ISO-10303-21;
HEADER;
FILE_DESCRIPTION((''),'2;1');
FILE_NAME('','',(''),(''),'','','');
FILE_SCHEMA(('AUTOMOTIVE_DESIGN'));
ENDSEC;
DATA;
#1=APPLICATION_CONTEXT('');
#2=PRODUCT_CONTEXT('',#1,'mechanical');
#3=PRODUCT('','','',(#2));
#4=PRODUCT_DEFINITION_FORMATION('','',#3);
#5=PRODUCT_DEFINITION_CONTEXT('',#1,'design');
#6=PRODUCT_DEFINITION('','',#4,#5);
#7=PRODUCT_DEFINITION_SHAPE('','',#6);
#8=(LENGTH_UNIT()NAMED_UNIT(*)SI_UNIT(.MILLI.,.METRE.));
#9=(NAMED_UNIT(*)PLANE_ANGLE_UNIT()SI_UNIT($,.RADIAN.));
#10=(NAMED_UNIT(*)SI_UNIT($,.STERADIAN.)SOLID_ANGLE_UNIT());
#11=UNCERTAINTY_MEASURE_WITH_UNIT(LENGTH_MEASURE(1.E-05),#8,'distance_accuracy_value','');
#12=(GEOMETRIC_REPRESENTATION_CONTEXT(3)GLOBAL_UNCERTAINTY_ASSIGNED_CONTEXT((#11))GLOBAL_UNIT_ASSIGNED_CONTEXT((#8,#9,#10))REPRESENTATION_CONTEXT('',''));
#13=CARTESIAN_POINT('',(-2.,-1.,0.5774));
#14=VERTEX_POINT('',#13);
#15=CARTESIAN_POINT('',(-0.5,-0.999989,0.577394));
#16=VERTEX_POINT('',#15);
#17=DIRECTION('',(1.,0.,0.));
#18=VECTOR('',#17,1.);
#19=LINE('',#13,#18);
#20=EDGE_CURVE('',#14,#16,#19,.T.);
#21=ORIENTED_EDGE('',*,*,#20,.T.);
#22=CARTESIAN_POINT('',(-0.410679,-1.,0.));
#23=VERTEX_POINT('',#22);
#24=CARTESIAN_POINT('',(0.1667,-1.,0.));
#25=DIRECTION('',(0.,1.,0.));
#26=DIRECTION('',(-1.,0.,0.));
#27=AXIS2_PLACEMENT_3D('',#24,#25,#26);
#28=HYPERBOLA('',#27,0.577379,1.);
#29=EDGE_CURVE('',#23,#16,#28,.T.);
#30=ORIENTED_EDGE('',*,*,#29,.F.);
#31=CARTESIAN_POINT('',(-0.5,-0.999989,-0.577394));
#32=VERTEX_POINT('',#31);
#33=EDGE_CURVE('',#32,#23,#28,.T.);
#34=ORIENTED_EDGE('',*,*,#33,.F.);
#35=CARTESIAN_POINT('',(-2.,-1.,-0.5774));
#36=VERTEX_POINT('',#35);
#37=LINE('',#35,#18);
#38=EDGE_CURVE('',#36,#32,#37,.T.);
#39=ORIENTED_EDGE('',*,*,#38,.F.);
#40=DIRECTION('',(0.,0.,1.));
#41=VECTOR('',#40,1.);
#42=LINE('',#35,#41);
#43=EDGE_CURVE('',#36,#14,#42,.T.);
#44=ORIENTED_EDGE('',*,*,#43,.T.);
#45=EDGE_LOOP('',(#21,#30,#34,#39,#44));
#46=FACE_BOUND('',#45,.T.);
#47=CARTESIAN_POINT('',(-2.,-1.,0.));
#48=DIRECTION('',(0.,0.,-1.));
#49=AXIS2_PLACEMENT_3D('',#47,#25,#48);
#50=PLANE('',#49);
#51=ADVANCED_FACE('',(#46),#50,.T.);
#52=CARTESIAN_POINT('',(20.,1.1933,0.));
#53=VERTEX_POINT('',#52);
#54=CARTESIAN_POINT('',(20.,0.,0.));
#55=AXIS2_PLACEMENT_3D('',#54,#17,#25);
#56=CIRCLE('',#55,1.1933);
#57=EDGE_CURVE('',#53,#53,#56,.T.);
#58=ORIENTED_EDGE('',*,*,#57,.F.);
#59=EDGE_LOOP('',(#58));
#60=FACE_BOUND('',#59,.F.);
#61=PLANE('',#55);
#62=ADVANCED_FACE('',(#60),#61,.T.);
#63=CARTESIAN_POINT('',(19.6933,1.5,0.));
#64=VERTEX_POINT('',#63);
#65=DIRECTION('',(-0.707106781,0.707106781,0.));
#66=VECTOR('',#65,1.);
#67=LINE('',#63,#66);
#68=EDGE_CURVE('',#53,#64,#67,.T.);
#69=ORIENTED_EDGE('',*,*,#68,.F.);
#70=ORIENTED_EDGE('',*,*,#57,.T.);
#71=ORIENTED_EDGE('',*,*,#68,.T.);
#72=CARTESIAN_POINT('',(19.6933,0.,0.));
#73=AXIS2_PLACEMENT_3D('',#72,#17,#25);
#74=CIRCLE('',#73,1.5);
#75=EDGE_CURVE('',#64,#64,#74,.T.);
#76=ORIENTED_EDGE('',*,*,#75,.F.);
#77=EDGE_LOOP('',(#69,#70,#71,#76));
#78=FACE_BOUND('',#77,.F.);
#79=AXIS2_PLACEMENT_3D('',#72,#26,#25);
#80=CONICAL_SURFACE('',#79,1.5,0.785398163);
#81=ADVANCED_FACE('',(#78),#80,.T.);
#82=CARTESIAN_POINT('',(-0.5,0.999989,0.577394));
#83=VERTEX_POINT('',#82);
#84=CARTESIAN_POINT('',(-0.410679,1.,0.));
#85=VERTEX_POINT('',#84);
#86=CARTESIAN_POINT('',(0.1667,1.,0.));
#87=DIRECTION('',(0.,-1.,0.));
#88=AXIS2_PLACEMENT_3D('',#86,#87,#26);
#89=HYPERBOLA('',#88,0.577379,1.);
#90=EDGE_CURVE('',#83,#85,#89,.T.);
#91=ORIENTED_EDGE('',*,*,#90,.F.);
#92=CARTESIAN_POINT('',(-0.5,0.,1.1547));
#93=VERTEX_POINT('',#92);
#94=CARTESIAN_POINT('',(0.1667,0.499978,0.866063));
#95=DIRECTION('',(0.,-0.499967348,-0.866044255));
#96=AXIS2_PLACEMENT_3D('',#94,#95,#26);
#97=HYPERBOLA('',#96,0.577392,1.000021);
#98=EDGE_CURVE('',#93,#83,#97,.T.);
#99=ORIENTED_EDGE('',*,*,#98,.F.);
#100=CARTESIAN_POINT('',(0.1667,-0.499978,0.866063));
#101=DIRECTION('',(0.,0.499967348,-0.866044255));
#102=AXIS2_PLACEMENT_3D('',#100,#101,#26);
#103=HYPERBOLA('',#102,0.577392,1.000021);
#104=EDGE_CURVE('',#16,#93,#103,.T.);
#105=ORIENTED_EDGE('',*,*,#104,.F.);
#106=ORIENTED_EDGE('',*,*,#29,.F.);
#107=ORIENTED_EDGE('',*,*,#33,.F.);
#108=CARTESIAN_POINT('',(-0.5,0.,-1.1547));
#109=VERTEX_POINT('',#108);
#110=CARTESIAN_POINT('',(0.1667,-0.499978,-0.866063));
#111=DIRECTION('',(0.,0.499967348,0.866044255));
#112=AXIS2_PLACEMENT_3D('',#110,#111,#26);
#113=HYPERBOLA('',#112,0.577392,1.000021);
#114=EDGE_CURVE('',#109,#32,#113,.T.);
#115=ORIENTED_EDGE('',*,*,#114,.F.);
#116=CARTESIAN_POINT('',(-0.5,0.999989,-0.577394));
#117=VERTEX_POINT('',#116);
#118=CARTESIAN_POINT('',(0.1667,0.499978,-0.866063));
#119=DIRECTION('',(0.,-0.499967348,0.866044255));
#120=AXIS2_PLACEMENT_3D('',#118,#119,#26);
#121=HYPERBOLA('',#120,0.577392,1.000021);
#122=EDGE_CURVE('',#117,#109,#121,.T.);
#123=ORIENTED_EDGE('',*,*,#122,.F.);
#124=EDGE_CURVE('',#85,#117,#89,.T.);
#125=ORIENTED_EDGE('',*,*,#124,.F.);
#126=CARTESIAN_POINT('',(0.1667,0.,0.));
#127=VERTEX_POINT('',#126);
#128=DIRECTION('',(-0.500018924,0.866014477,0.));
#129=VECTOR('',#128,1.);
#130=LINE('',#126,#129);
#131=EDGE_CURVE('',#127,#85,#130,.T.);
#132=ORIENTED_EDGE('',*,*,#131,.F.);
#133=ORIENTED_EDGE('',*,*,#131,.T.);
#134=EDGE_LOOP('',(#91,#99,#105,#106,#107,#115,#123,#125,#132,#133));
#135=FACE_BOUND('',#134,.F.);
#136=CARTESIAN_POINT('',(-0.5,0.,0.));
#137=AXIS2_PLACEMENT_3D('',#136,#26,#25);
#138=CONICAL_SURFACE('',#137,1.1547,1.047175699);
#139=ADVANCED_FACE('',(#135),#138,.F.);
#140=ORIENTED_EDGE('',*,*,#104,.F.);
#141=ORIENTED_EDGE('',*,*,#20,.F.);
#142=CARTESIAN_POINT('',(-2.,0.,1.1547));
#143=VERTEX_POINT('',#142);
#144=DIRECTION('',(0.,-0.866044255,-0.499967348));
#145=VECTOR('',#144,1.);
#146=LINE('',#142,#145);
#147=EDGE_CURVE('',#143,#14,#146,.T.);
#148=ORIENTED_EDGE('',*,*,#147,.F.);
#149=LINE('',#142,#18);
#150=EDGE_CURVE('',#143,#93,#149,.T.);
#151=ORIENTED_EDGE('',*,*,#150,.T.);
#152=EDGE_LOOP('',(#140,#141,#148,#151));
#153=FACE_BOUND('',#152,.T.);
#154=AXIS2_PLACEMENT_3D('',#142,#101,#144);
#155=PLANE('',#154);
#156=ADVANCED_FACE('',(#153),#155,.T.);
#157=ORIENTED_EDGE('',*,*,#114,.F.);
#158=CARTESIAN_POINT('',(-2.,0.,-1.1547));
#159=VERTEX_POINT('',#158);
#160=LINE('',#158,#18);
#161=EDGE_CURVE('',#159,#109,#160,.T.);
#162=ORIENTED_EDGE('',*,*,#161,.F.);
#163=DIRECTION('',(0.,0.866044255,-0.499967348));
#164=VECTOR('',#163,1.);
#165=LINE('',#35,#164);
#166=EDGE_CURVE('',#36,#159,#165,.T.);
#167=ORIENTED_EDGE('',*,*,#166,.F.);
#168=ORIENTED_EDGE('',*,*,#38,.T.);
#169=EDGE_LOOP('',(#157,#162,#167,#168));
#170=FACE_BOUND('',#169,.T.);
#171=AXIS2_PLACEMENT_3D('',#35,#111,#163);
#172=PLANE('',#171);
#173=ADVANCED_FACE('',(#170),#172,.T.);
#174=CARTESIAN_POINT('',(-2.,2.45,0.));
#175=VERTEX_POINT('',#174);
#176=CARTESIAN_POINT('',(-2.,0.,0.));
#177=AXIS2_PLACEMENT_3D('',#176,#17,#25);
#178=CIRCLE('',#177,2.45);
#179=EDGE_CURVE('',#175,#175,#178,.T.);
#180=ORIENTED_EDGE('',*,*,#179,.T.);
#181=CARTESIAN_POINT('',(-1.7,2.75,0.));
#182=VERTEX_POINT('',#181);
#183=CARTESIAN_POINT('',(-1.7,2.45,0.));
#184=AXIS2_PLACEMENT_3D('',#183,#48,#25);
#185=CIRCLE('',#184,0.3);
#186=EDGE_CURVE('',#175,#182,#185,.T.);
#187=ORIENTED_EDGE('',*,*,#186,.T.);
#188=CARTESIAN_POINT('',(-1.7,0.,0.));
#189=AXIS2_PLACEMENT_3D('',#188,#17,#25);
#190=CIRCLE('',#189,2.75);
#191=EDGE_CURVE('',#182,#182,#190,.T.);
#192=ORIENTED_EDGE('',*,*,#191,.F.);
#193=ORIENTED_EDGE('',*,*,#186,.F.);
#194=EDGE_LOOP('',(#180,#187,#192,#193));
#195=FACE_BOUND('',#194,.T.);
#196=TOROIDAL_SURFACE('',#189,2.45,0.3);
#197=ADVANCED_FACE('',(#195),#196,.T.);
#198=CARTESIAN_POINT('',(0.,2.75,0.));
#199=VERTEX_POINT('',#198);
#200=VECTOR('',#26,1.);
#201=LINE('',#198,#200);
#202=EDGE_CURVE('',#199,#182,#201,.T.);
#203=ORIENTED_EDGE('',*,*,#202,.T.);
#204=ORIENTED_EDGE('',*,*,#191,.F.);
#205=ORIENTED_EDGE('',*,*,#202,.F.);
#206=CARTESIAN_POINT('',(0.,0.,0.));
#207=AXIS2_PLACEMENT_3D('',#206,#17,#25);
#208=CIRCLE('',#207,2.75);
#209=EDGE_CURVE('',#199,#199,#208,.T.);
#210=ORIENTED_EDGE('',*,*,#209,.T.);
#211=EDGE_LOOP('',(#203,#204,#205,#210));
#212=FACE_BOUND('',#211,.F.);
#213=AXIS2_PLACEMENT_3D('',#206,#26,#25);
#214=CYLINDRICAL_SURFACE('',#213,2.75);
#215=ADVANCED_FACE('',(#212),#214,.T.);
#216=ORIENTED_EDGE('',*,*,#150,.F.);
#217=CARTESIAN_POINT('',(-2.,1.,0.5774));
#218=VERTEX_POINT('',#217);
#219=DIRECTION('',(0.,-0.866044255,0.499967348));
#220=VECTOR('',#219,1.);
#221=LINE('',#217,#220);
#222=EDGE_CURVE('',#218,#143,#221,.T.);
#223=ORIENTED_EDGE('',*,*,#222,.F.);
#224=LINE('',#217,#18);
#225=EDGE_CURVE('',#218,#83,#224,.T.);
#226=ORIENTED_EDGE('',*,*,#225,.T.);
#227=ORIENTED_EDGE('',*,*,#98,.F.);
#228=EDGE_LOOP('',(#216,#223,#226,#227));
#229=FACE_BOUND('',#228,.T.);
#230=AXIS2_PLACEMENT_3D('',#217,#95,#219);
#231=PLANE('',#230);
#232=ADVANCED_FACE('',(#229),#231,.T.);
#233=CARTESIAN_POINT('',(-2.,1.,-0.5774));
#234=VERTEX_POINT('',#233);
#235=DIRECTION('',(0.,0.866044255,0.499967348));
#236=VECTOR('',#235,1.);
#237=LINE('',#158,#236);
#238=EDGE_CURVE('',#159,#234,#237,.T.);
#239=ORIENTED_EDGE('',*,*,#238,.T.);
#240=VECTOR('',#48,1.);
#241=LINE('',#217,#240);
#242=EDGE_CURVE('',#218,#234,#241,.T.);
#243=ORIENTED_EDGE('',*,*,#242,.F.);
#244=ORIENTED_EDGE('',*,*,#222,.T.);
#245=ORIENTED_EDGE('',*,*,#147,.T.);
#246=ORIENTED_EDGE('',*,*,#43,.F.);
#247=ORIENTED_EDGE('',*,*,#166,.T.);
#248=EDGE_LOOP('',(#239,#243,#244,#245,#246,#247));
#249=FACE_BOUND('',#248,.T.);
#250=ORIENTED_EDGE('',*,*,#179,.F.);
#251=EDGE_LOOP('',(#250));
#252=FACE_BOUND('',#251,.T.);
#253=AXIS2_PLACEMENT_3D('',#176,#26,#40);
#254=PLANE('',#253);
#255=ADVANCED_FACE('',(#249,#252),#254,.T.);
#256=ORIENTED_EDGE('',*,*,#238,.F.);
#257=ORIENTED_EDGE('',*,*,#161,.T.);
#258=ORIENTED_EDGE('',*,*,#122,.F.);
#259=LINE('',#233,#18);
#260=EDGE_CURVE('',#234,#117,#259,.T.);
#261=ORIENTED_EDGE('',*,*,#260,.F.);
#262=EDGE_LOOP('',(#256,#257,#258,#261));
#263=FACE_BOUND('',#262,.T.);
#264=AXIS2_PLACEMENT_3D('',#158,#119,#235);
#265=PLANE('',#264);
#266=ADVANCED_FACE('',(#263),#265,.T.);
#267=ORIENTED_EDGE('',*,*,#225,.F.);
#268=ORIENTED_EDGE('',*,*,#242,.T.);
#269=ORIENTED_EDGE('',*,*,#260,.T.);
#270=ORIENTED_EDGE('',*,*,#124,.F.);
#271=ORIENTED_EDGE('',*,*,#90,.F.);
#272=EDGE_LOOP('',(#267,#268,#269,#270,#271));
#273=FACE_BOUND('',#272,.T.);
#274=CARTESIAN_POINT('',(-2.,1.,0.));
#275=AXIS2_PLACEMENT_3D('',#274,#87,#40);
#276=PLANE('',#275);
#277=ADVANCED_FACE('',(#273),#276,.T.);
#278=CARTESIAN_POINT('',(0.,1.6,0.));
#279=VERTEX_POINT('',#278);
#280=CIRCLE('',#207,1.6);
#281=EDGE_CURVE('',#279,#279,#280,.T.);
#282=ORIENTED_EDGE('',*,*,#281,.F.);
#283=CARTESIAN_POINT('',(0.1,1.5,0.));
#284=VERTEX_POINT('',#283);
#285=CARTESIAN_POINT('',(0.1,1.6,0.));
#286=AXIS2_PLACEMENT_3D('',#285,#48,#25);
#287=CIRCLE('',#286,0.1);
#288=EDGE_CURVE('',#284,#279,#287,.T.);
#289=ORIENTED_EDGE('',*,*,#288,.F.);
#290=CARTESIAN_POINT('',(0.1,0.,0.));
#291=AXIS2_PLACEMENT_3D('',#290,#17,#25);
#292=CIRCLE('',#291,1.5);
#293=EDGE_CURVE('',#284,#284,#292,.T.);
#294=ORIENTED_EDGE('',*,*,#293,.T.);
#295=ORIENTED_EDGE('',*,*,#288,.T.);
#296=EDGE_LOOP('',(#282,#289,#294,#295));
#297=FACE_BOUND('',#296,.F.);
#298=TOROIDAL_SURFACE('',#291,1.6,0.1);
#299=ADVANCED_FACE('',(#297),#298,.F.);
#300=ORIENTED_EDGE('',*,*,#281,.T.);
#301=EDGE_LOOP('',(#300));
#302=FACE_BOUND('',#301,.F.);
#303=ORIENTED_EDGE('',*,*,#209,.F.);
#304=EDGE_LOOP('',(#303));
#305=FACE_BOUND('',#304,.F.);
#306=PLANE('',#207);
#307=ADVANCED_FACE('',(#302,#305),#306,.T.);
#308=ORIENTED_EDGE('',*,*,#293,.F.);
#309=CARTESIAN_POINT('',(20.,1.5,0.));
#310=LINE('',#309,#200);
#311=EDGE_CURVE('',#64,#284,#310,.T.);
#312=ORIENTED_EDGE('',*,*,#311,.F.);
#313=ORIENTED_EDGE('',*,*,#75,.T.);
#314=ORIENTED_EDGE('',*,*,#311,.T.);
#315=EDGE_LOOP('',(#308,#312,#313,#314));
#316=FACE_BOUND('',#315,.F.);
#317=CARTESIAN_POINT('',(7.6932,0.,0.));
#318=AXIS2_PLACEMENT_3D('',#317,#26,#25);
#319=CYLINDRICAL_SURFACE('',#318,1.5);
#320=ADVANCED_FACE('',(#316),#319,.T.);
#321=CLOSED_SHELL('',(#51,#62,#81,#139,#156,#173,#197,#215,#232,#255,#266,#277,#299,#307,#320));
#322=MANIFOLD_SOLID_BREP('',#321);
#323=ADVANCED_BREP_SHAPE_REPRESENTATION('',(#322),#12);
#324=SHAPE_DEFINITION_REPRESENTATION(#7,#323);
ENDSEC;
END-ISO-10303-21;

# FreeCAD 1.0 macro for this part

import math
import FreeCAD as App
import Part
import Sketcher
Q = App.Units.Quantity


def edges_at(feature, points):
    """Names of the edges that pass closest to the given points."""
    edges = feature.Shape.Edges
    near = lambda p: min(range(len(edges)), key=lambda i: edges[i].distToShape(Part.Vertex(*p))[0])
    return sorted({f"Edge{near(p) + 1}" for p in points})

doc = App.newDocument("Part")
body = doc.addObject("PartDesign::Body", "Body")

sketch1 = doc.addObject("Sketcher::SketchObject", "Sketch")
body.addObject(sketch1)
sketch1.AttachmentSupport = (doc.XY_Plane, [""])
sketch1.MapMode = "FlatFace"
sketch1.addGeometry(Part.LineSegment(App.Vector(0.2, 0, 0), App.Vector(20, 0, 0)), False)
sketch1.addGeometry(Part.LineSegment(App.Vector(20, 0, 0), App.Vector(20, 1.5, 0)), False)
sketch1.addGeometry(Part.LineSegment(App.Vector(20, 1.5, 0), App.Vector(0, 1.5, 0)), False)
sketch1.addGeometry(Part.LineSegment(App.Vector(0, 1.5, 0), App.Vector(0, 2.8, 0)), False)
sketch1.addGeometry(Part.LineSegment(App.Vector(0, 2.8, 0), App.Vector(-2, 2.8, 0)), False)
sketch1.addGeometry(Part.LineSegment(App.Vector(-2, 2.8, 0), App.Vector(-2, 1.2, 0)), False)
sketch1.addGeometry(Part.LineSegment(App.Vector(-2, 1.2, 0), App.Vector(-0.5, 1.2, 0)), False)
sketch1.addGeometry(Part.LineSegment(App.Vector(-0.5, 1.2, 0), App.Vector(0.2, 0, 0)), False)
sketch1.addConstraint(Sketcher.Constraint("Coincident", 0, 2, 1, 1))
sketch1.addConstraint(Sketcher.Constraint("Coincident", 1, 2, 2, 1))
sketch1.addConstraint(Sketcher.Constraint("Coincident", 2, 2, 3, 1))
sketch1.addConstraint(Sketcher.Constraint("Coincident", 3, 2, 4, 1))
sketch1.addConstraint(Sketcher.Constraint("Coincident", 4, 2, 5, 1))
sketch1.addConstraint(Sketcher.Constraint("Coincident", 5, 2, 6, 1))
sketch1.addConstraint(Sketcher.Constraint("Coincident", 6, 2, 7, 1))
sketch1.addConstraint(Sketcher.Constraint("Coincident", 7, 2, 0, 1))
sketch1.addConstraint(Sketcher.Constraint("Horizontal", 0))
sketch1.addConstraint(Sketcher.Constraint("Vertical", 1))
sketch1.addConstraint(Sketcher.Constraint("Horizontal", 2))
sketch1.addConstraint(Sketcher.Constraint("Vertical", 3))
sketch1.addConstraint(Sketcher.Constraint("Horizontal", 4))
sketch1.addConstraint(Sketcher.Constraint("Vertical", 5))
sketch1.addConstraint(Sketcher.Constraint("Horizontal", 6))
sketch1.addConstraint(Sketcher.Constraint("PointOnObject", 0, 2, -1))
sketch1.addConstraint(Sketcher.Constraint("PointOnObject", 2, 2, -2))
sketch1.addConstraint(Sketcher.Constraint("Equal", 6, 1))
sketch1.addConstraint(Sketcher.Constraint("DistanceX", 2, 2, 2, 1, Q("20 mm")))
sketch1.addConstraint(Sketcher.Constraint("DistanceX", 4, 2, 4, 1, Q("2 mm")))
sketch1.addConstraint(Sketcher.Constraint("DistanceX", 6, 1, 6, 2, Q("1.5 mm")))
sketch1.addConstraint(Sketcher.Constraint("DistanceY", 3, 1, 3, 2, Q("1.25 mm")))
sketch1.addConstraint(Sketcher.Constraint("DistanceX", 0, 1, 0, 2, Q("19.8333 mm")))
sketch1.addConstraint(Sketcher.Constraint("DistanceY", 5, 2, 5, 1, Q("1.5953 mm")))
revolution = doc.addObject("PartDesign::Revolution", "Revolution")
body.addObject(revolution)
revolution.Profile = sketch1
revolution.ReferenceAxis = (sketch1, ["H_Axis"])
revolution.Angle = 360

sketch2 = doc.addObject("Sketcher::SketchObject", "Sketch001")
body.addObject(sketch2)
sketch2.AttachmentSupport = (doc.YZ_Plane, [""])
sketch2.MapMode = "FlatFace"
sketch2.AttachmentOffset = App.Placement(App.Vector(0, 0, -2), App.Rotation())
sketch2.addGeometry(Part.LineSegment(App.Vector(1, 0.6, 0), App.Vector(0, 1.2, 0)), False)
sketch2.addGeometry(Part.ArcOfCircle(Part.Circle(App.Vector(0, 0, 0), App.Vector(0, 0, 1), 1.2), math.radians(30), math.radians(90)), False)
sketch2.addGeometry(Part.ArcOfCircle(Part.Circle(App.Vector(0, 0, 0), App.Vector(0, 0, 1), 1.2), math.radians(90), math.radians(150)), False)
sketch2.addGeometry(Part.LineSegment(App.Vector(0, 1.2, 0), App.Vector(-1, 0.6, 0)), False)
sketch2.addGeometry(Part.ArcOfCircle(Part.Circle(App.Vector(0, 0, 0), App.Vector(0, 0, 1), 1.2), math.radians(-30), math.radians(30)), False)
sketch2.addGeometry(Part.LineSegment(App.Vector(1, 0.6, 0), App.Vector(1, -0.6, 0)), False)
sketch2.addGeometry(Part.LineSegment(App.Vector(-1, 0.6, 0), App.Vector(-1, -0.6, 0)), False)
sketch2.addGeometry(Part.ArcOfCircle(Part.Circle(App.Vector(0, 0, 0), App.Vector(0, 0, 1), 1.2), math.radians(150), math.radians(210)), False)
sketch2.addGeometry(Part.LineSegment(App.Vector(-1, -0.6, 0), App.Vector(0, -1.2, 0)), False)
sketch2.addGeometry(Part.ArcOfCircle(Part.Circle(App.Vector(0, 0, 0), App.Vector(0, 0, 1), 1.2), math.radians(-150), math.radians(-90)), False)
sketch2.addGeometry(Part.ArcOfCircle(Part.Circle(App.Vector(0, 0, 0), App.Vector(0, 0, 1), 1.2), math.radians(-90), math.radians(-30)), False)
sketch2.addGeometry(Part.LineSegment(App.Vector(0, -1.2, 0), App.Vector(1, -0.6, 0)), False)
sketch2.addConstraint(Sketcher.Constraint("Coincident", 0, 1, 1, 1))
sketch2.addConstraint(Sketcher.Constraint("Coincident", 1, 2, 0, 2))
sketch2.addConstraint(Sketcher.Constraint("Coincident", 2, 1, 3, 1))
sketch2.addConstraint(Sketcher.Constraint("Coincident", 3, 2, 2, 2))
sketch2.addConstraint(Sketcher.Constraint("Coincident", 4, 1, 5, 2))
sketch2.addConstraint(Sketcher.Constraint("Coincident", 5, 1, 4, 2))
sketch2.addConstraint(Sketcher.Constraint("Coincident", 6, 1, 7, 1))
sketch2.addConstraint(Sketcher.Constraint("Coincident", 7, 2, 6, 2))
sketch2.addConstraint(Sketcher.Constraint("Coincident", 8, 1, 9, 1))
sketch2.addConstraint(Sketcher.Constraint("Coincident", 9, 2, 8, 2))
sketch2.addConstraint(Sketcher.Constraint("Coincident", 10, 1, 11, 1))
sketch2.addConstraint(Sketcher.Constraint("Coincident", 11, 2, 10, 2))
sketch2.addConstraint(Sketcher.Constraint("Vertical", 5))
sketch2.addConstraint(Sketcher.Constraint("Vertical", 6))
sketch2.addConstraint(Sketcher.Constraint("Coincident", 1, 3, -1, 1))
sketch2.addConstraint(Sketcher.Constraint("Coincident", 2, 3, -1, 1))
sketch2.addConstraint(Sketcher.Constraint("Coincident", 4, 3, -1, 1))
sketch2.addConstraint(Sketcher.Constraint("Coincident", 7, 3, -1, 1))
sketch2.addConstraint(Sketcher.Constraint("Coincident", 9, 3, -1, 1))
sketch2.addConstraint(Sketcher.Constraint("Coincident", 10, 3, -1, 1))
sketch2.addConstraint(Sketcher.Constraint("Coincident", 2, 1, 1, 2))
sketch2.addConstraint(Sketcher.Constraint("Coincident", 5, 1, 0, 1))
sketch2.addConstraint(Sketcher.Constraint("Coincident", 6, 1, 3, 2))
sketch2.addConstraint(Sketcher.Constraint("Coincident", 8, 1, 7, 2))
sketch2.addConstraint(Sketcher.Constraint("Coincident", 10, 1, 9, 2))
sketch2.addConstraint(Sketcher.Constraint("PointOnObject", 1, 2, -2))
sketch2.addConstraint(Sketcher.Constraint("PointOnObject", 9, 2, -2))
sketch2.addConstraint(Sketcher.Constraint("Parallel", 0, 8))
sketch2.addConstraint(Sketcher.Constraint("Parallel", 3, 11))
sketch2.addConstraint(Sketcher.Constraint("DistanceX", -1, 1, 0, 1, Q("1 mm")))
sketch2.addConstraint(Sketcher.Constraint("Radius", 1, Q("1.1547 mm")))
pad1 = doc.addObject("PartDesign::Pad", "Pad")
body.addObject(pad1)
pad1.Profile = sketch2
pad1.Type = "UpToFirst"
doc.recompute()

fillet = doc.addObject("PartDesign::Fillet", "Fillet")
body.addObject(fillet)
fillet.Base = (pad1, edges_at(pad1, [(-2, -2.75, 0)]))
fillet.Radius = 0.3
doc.recompute()

chamfer = doc.addObject("PartDesign::Chamfer", "Chamfer")
body.addObject(chamfer)
chamfer.Base = (fillet, edges_at(fillet, [(20, -1.5, 0)]))
chamfer.ChamferType = "Two distances"
chamfer.Size = 0.3067
chamfer.Size2 = 0.3067
doc.recompute()

fillet2 = doc.addObject("PartDesign::Fillet", "Fillet001")
body.addObject(fillet2)
fillet2.Base = (chamfer, edges_at(chamfer, [(0, -1.5, 0)]))
fillet2.Radius = 0.1

doc.recompute()
